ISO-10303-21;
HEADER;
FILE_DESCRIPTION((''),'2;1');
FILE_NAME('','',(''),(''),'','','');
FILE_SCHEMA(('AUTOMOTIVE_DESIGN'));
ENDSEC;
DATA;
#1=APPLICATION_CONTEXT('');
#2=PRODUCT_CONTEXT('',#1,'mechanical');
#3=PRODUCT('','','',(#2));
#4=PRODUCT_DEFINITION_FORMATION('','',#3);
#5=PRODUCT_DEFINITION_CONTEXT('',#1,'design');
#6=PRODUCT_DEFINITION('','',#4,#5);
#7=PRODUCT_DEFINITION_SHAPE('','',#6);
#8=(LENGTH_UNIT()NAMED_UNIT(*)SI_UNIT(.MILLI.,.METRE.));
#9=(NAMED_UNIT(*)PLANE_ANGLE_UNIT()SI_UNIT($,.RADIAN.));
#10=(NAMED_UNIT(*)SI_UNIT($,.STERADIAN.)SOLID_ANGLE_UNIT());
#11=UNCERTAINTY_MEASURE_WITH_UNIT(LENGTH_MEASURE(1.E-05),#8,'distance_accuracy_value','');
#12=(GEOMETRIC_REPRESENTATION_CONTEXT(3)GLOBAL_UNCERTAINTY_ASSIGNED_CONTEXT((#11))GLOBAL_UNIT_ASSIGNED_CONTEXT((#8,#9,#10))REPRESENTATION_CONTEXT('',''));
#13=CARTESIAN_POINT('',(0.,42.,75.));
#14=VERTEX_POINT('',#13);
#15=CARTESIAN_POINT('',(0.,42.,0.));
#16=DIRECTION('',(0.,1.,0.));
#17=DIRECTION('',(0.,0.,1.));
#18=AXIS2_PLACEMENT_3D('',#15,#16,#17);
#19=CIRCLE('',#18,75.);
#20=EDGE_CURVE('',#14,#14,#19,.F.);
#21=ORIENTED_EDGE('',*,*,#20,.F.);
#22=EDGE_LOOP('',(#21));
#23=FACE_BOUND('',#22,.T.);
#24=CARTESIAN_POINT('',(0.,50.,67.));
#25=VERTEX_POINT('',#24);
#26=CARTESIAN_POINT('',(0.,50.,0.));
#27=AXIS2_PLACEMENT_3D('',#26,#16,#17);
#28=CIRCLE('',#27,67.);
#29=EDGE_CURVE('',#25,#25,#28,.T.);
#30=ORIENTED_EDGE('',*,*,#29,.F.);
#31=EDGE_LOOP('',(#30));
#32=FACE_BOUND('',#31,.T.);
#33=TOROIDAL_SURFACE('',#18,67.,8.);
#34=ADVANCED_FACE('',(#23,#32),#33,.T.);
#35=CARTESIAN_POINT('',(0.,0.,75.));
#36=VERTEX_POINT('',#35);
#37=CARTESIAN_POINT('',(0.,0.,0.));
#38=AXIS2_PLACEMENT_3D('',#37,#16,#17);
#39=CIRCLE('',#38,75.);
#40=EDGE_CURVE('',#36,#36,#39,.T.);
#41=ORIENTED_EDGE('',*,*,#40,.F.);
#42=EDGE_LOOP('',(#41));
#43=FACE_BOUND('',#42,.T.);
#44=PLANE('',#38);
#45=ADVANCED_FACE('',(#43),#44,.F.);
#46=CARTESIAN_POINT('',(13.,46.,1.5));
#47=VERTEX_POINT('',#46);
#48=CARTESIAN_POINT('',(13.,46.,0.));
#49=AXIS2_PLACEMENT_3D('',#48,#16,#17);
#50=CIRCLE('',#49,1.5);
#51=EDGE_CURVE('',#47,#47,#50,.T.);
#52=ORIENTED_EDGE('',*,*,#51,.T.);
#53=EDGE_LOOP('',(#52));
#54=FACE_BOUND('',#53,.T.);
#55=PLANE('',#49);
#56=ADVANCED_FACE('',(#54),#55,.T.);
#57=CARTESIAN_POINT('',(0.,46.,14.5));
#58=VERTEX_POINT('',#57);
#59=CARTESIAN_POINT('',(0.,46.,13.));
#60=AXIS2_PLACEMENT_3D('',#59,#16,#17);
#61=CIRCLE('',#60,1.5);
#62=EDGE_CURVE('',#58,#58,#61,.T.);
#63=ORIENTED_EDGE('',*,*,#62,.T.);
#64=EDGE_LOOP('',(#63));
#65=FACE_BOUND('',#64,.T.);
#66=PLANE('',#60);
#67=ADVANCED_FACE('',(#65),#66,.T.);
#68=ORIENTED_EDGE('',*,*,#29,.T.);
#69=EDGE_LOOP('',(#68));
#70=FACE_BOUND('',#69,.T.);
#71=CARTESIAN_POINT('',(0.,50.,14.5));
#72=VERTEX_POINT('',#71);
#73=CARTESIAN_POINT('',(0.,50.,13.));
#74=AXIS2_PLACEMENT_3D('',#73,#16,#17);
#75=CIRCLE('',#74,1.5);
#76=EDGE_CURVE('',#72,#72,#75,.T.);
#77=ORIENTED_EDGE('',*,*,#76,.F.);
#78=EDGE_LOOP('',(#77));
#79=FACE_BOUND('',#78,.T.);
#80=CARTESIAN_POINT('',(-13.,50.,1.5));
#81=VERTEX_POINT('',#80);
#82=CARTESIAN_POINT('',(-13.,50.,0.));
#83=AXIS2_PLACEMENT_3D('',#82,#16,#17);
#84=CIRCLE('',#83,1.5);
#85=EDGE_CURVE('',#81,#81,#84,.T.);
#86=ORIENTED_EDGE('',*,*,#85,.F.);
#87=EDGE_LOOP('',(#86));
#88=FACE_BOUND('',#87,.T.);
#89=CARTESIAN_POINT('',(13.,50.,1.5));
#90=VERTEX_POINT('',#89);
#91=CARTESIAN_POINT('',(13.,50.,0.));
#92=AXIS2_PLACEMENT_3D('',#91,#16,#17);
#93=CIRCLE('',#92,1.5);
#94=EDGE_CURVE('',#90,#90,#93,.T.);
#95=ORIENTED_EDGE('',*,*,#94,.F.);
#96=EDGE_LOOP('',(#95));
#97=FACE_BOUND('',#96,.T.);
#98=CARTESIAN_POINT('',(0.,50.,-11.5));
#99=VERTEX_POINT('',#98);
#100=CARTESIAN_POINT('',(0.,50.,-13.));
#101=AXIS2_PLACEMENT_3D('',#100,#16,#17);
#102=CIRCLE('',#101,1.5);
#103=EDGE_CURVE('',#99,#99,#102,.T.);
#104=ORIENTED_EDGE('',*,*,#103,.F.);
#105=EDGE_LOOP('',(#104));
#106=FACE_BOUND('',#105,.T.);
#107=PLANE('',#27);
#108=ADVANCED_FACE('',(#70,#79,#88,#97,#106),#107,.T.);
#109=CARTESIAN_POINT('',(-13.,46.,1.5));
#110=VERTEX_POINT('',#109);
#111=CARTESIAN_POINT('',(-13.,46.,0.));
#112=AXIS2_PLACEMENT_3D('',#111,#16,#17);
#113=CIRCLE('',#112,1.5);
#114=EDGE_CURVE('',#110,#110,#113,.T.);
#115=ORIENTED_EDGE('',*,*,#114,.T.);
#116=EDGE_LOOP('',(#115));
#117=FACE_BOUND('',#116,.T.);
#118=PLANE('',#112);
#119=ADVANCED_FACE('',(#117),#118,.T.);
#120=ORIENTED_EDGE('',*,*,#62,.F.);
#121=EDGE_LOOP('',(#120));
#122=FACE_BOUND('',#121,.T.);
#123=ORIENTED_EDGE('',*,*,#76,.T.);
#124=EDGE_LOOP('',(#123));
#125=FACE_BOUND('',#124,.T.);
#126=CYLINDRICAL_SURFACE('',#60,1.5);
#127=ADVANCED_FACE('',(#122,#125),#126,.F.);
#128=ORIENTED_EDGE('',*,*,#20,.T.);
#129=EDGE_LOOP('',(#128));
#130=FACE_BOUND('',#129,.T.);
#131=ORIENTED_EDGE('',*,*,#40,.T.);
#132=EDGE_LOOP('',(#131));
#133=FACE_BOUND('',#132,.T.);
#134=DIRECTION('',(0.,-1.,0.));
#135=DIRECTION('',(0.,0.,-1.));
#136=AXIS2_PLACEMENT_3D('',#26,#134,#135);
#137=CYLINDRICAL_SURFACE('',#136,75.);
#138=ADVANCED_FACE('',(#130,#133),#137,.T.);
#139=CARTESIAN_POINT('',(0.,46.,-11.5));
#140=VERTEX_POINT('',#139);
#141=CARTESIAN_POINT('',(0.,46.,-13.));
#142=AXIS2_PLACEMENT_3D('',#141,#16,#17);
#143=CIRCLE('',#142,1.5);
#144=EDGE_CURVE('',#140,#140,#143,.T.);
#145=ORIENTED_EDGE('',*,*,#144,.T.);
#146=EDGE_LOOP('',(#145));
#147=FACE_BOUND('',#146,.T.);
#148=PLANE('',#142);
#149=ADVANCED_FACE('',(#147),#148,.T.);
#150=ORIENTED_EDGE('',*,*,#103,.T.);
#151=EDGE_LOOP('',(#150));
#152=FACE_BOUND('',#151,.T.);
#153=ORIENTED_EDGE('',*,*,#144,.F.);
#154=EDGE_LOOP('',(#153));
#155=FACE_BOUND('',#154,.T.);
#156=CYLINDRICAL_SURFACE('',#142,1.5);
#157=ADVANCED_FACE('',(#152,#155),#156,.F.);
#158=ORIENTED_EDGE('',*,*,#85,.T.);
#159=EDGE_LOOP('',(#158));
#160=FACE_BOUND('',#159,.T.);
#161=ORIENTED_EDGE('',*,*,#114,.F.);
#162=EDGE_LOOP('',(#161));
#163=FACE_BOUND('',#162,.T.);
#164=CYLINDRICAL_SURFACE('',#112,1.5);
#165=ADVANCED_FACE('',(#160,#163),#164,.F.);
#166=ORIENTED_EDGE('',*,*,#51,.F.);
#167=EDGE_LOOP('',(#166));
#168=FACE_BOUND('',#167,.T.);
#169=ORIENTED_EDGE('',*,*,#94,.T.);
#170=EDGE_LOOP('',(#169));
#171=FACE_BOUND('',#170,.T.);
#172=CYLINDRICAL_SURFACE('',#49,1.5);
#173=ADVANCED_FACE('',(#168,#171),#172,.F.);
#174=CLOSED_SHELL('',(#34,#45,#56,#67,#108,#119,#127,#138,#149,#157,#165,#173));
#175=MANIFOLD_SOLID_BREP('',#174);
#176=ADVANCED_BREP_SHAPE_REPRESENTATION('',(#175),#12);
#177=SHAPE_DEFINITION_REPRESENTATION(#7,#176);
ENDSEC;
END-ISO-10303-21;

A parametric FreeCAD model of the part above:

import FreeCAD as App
import Part
import Sketcher

V = App.Vector


def edges_at(feature, points):
    """Names of the edges that pass closest to the given points."""
    edges = feature.Shape.Edges
    near = lambda p: min(range(len(edges)), key=lambda i: edges[i].distToShape(Part.Vertex(*p))[0])
    return sorted({f"Edge{near(p) + 1}" for p in points})

doc = App.newDocument("Part")
body = doc.addObject("PartDesign::Body", "Body")

sketch1 = body.newObject("Sketcher::SketchObject", "Sketch")
sketch1.AttachmentSupport = (doc.getObject("XZ_Plane"), [""])
sketch1.MapMode = "FlatFace"
sketch1.addGeometry(Part.Circle(V(0, 0, 0), V(0, 0, 1), 75), False)
sketch1.addConstraint(Sketcher.Constraint("Coincident", 0, 3, -1, 1))
sketch1.addConstraint(Sketcher.Constraint("Diameter", 0, 150.0))
pad1 = body.newObject("PartDesign::Pad", "Pad")
pad1.Profile = sketch1
pad1.Length = 50
pad1.Reversed = True
doc.recompute()

fillet = body.newObject("PartDesign::Fillet", "Fillet")
fillet.Base = (pad1, edges_at(pad1, [(0, 50, -75)]))
fillet.Radius = 8

sketch2 = body.newObject("Sketcher::SketchObject", "Sketch001")
sketch2.AttachmentSupport = (doc.getObject("XZ_Plane"), [""])
sketch2.MapMode = "FlatFace"
sketch2.AttachmentOffset = App.Placement(V(0, 0, -50), App.Rotation())
sketch2.addGeometry(Part.Circle(V(0, -13, 0), V(0, 0, 1), 1.5), False)
sketch2.addGeometry(Part.Circle(V(13, 0, 0), V(0, 0, 1), 1.5), False)
sketch2.addGeometry(Part.Circle(V(0, 13, 0), V(0, 0, 1), 1.5), False)
sketch2.addGeometry(Part.Circle(V(-13, 0, 0), V(0, 0, 1), 1.5), False)
sketch2.addConstraint(Sketcher.Constraint("Equal", 0, 1))
sketch2.addConstraint(Sketcher.Constraint("Equal", 1, 2))
sketch2.addConstraint(Sketcher.Constraint("Equal", 2, 3))
sketch2.addConstraint(Sketcher.Constraint("Symmetric", 0, 3, 2, 3, -1, 1))
sketch2.addConstraint(Sketcher.Constraint("Symmetric", 1, 3, 3, 3, -1, 1))
sketch2.addConstraint(Sketcher.Constraint("PointOnObject", 0, 3, -2))
sketch2.addConstraint(Sketcher.Constraint("PointOnObject", 1, 3, -1))
sketch2.addConstraint(Sketcher.Constraint("Diameter", 0, 3.0))
sketch2.addConstraint(Sketcher.Constraint("DistanceY", 0, 3, -1, 1, 13.0))
sketch2.addConstraint(Sketcher.Constraint("DistanceX", -1, 1, 1, 3, 13.0))
pocket1 = body.newObject("PartDesign::Pocket", "Pocket")
pocket1.Profile = sketch2
pocket1.Length = 4
pocket1.Reversed = True

doc.recompute()
